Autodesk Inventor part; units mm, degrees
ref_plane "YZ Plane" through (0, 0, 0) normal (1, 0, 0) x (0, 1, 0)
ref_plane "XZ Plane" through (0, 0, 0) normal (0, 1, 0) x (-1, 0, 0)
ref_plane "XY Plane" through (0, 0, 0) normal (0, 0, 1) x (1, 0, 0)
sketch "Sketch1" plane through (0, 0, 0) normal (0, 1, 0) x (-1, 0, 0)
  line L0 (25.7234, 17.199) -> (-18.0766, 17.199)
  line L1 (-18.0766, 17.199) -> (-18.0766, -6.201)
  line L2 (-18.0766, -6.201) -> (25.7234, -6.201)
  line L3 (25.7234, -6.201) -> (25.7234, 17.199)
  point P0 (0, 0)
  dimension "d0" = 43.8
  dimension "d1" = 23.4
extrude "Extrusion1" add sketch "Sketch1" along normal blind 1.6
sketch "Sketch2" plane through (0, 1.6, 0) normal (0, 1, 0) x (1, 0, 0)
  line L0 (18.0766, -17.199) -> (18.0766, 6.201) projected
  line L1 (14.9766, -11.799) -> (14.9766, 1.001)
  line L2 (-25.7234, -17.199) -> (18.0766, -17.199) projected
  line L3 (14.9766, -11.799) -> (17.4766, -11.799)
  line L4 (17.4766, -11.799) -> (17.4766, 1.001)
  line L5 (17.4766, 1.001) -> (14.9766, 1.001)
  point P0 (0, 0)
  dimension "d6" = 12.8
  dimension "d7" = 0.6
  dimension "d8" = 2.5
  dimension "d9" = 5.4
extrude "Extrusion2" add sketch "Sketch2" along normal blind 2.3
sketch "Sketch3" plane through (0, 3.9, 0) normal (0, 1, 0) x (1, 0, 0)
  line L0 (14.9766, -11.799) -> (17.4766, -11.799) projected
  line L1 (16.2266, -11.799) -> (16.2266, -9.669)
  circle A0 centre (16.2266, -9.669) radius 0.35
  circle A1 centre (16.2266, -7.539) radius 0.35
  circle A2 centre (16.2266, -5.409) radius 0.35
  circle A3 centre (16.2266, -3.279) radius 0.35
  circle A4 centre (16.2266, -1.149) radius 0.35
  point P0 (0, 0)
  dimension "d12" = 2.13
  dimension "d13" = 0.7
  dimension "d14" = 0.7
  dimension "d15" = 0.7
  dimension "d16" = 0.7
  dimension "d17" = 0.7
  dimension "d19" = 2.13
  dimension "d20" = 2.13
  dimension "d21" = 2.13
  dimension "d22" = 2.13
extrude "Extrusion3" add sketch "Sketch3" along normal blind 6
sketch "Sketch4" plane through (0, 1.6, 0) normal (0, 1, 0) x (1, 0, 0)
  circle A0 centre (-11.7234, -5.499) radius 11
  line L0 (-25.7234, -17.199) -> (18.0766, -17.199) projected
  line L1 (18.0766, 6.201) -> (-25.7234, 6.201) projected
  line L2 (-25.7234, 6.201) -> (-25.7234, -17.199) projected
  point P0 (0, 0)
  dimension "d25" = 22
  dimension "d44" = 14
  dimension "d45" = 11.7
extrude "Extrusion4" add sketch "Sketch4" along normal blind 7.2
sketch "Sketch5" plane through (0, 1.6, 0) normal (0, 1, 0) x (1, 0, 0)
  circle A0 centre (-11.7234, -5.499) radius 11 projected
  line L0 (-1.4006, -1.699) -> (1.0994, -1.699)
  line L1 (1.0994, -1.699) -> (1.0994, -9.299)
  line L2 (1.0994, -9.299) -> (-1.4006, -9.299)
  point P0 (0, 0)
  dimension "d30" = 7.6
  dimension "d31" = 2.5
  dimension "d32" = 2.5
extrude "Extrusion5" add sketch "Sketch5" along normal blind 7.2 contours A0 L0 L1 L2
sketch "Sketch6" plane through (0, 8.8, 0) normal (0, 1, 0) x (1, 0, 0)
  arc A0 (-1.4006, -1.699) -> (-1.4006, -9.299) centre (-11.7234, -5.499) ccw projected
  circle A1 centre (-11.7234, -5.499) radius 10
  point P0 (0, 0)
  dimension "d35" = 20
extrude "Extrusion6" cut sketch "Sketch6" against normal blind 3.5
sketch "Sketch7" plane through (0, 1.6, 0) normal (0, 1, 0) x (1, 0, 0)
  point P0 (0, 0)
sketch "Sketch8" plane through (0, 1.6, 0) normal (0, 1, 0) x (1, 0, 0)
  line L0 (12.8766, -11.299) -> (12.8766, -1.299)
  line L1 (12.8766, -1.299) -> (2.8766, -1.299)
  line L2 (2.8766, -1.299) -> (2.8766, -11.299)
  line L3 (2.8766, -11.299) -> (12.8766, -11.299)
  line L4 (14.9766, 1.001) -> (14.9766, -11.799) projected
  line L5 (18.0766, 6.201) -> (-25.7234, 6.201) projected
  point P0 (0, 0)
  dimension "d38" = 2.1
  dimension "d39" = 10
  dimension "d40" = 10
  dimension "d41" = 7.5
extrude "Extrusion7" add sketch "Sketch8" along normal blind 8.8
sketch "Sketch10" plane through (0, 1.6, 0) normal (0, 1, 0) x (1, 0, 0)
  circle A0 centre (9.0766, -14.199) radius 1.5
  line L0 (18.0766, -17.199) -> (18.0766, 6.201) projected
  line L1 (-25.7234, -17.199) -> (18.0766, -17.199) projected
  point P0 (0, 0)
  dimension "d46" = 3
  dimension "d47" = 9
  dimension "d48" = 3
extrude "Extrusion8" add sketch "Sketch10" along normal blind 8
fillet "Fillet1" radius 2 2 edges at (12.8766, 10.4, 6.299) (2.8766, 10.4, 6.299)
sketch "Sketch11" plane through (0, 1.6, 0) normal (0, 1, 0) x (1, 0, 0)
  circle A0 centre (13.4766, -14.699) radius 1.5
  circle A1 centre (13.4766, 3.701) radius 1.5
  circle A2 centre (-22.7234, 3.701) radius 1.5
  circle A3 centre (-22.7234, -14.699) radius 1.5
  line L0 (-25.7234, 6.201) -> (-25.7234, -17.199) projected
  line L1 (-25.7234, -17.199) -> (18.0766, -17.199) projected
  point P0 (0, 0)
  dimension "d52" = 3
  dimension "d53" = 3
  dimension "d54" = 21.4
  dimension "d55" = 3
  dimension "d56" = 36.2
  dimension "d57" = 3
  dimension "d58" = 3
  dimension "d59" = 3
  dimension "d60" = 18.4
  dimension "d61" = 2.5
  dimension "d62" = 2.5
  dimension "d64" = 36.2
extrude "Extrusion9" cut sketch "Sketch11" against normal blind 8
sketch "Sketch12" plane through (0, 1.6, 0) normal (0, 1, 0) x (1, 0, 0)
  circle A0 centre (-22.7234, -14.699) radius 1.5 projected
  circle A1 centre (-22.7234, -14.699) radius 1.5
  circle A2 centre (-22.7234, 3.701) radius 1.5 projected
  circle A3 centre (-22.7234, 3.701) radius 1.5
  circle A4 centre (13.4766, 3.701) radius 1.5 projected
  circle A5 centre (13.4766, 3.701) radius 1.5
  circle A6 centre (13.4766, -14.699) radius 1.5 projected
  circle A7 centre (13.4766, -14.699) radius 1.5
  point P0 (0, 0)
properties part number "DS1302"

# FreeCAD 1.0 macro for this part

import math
import FreeCAD as App
import Part
import Sketcher


def edges_at(feature, points):
    """Names of the edges that pass closest to the given points."""
    edges = feature.Shape.Edges
    near = lambda p: min(range(len(edges)), key=lambda i: edges[i].distToShape(Part.Vertex(*p))[0])
    return sorted({f"Edge{near(p) + 1}" for p in points})

doc = App.newDocument("Part")
body = doc.addObject("PartDesign::Body", "Body")

# Sketch on XZ plane
sketch1 = doc.addObject("Sketcher::SketchObject", "Sketch")
body.addObject(sketch1)
sketch1.AttachmentSupport = (doc.XZ_Plane, [""])
sketch1.MapMode = "FlatFace"
sketch1.addGeometry([
    Part.LineSegment(App.Vector(-26, -6, 0), App.Vector(-26, 17, 0)),
    Part.LineSegment(App.Vector(-26, 17, 0), App.Vector(18, 17, 0)),
    Part.LineSegment(App.Vector(18, 17, 0), App.Vector(18, -6, 0)),
    Part.LineSegment(App.Vector(18, -6, 0), App.Vector(-26, -6, 0)),
], False)
sketch1.addConstraint([
    Sketcher.Constraint("Coincident", 0, 2, 1, 1),
    Sketcher.Constraint("Coincident", 1, 2, 2, 1),
    Sketcher.Constraint("Coincident", 2, 2, 3, 1),
    Sketcher.Constraint("Coincident", 3, 2, 0, 1),
    Sketcher.Constraint("Vertical", 0),
    Sketcher.Constraint("Horizontal", 1),
    Sketcher.Constraint("Vertical", 2),
    Sketcher.Constraint("Horizontal", 3),
    Sketcher.Constraint("DistanceX", 1, 1, 1, 2, 43.8),
    Sketcher.Constraint("DistanceY", 0, 1, 0, 2, 23.4),
    Sketcher.Constraint("DistanceY", -1, 1, 0, 2, 17.199),
    Sketcher.Constraint("DistanceX", 0, 2, -1, 1, 25.7234),
])
pad1 = doc.addObject("PartDesign::Pad", "Pad")
body.addObject(pad1)
pad1.Profile = sketch1
pad1.Length = 1.6
pad1.Reversed = True

# Sketch on XZ plane
sketch2 = doc.addObject("Sketcher::SketchObject", "Sketch001")
body.addObject(sketch2)
sketch2.AttachmentSupport = (doc.XZ_Plane, [""])
sketch2.MapMode = "FlatFace"
sketch2.AttachmentOffset = App.Placement(App.Vector(0, 0, -1.6), App.Rotation())
sketch2.addGeometry([
    Part.LineSegment(App.Vector(15, -1, 0), App.Vector(15, 11.8, 0)),
    Part.LineSegment(App.Vector(15, 11.8, 0), App.Vector(17.5, 11.8, 0)),
    Part.LineSegment(App.Vector(17.5, 11.8, 0), App.Vector(17.5, -1, 0)),
    Part.LineSegment(App.Vector(17.5, -1, 0), App.Vector(15, -1, 0)),
], False)
sketch2.addConstraint([
    Sketcher.Constraint("Coincident", 0, 2, 1, 1),
    Sketcher.Constraint("Coincident", 1, 2, 2, 1),
    Sketcher.Constraint("Coincident", 2, 2, 3, 1),
    Sketcher.Constraint("Coincident", 3, 2, 0, 1),
    Sketcher.Constraint("Vertical", 0),
    Sketcher.Constraint("Horizontal", 1),
    Sketcher.Constraint("Vertical", 2),
    Sketcher.Constraint("Horizontal", 3),
    Sketcher.Constraint("DistanceX", 1, 1, 1, 2, 2.5),
    Sketcher.Constraint("DistanceY", 0, 1, 0, 2, 12.8),
    Sketcher.Constraint("DistanceY", -1, 1, 0, 2, 11.799),
    Sketcher.Constraint("DistanceX", -1, 1, 0, 2, 14.9766),
])
pad2 = doc.addObject("PartDesign::Pad", "Pad001")
body.addObject(pad2)
pad2.Profile = sketch2
pad2.Length = 2.3
pad2.Reversed = True

# Sketch on XZ plane
sketch3 = doc.addObject("Sketcher::SketchObject", "Sketch002")
body.addObject(sketch3)
sketch3.AttachmentSupport = (doc.XZ_Plane, [""])
sketch3.MapMode = "FlatFace"
sketch3.AttachmentOffset = App.Placement(App.Vector(0, 0, -3.9), App.Rotation())
sketch3.addGeometry([
    Part.Circle(App.Vector(16.23, 9.67, 0), App.Vector(0, 0, 1), 0.35),  # 0
    Part.Circle(App.Vector(16.23, 7.54, 0), App.Vector(0, 0, 1), 0.35),  # 1
    Part.Circle(App.Vector(16.23, 5.41, 0), App.Vector(0, 0, 1), 0.35),  # 2
    Part.Circle(App.Vector(16.23, 3.28, 0), App.Vector(0, 0, 1), 0.35),  # 3
    Part.Circle(App.Vector(16.23, 1.15, 0), App.Vector(0, 0, 1), 0.35),  # 4
], False)
sketch3.addConstraint([
    Sketcher.Constraint("Equal", 0, 1),
    Sketcher.Constraint("Equal", 1, 2),
    Sketcher.Constraint("Equal", 2, 3),
    Sketcher.Constraint("Equal", 3, 4),
    Sketcher.Constraint("Vertical", 0, 3, 1, 3),
    Sketcher.Constraint("Vertical", 1, 3, 2, 3),
    Sketcher.Constraint("Vertical", 2, 3, 3, 3),
    Sketcher.Constraint("Vertical", 3, 3, 4, 3),
    Sketcher.Constraint("Diameter", 0, 0.7),
    Sketcher.Constraint("DistanceY", 1, 3, 0, 3, 2.13),
    Sketcher.Constraint("DistanceY", 2, 3, 1, 3, 2.13),
    Sketcher.Constraint("DistanceY", 3, 3, 2, 3, 2.13),
    Sketcher.Constraint("DistanceY", 4, 3, 3, 3, 2.13),
    Sketcher.Constraint("DistanceY", -1, 1, 0, 3, 9.669),
    Sketcher.Constraint("DistanceX", -1, 1, 0, 3, 16.2266),
])
pad3 = doc.addObject("PartDesign::Pad", "Pad002")
body.addObject(pad3)
pad3.Profile = sketch3
pad3.Length = 6
pad3.Reversed = True

# Sketch on XZ plane
sketch4 = doc.addObject("Sketcher::SketchObject", "Sketch003")
body.addObject(sketch4)
sketch4.AttachmentSupport = (doc.XZ_Plane, [""])
sketch4.MapMode = "FlatFace"
sketch4.AttachmentOffset = App.Placement(App.Vector(0, 0, -1.6), App.Rotation())
sketch4.addGeometry(Part.Circle(App.Vector(-12, 5, 0), App.Vector(0, 0, 1), 11), False)
sketch4.addConstraint([
    Sketcher.Constraint("Diameter", 0, 22.0),
    Sketcher.Constraint("DistanceY", -1, 1, 0, 3, 5.499),
    Sketcher.Constraint("DistanceX", 0, 3, -1, 1, 11.7234),
])
pad4 = doc.addObject("PartDesign::Pad", "Pad003")
body.addObject(pad4)
pad4.Profile = sketch4
pad4.Length = 7.2
pad4.Reversed = True

# Sketch on XZ plane
sketch5 = doc.addObject("Sketcher::SketchObject", "Sketch004")
body.addObject(sketch5)
sketch5.AttachmentSupport = (doc.XZ_Plane, [""])
sketch5.MapMode = "FlatFace"
sketch5.AttachmentOffset = App.Placement(App.Vector(0, 0, -1.6), App.Rotation())
sketch5.addGeometry([
    Part.ArcOfCircle(Part.Circle(App.Vector(-11.7, 5.5, 0), App.Vector(0, 0, 1), 11), math.radians(-20), math.radians(20)),
    Part.LineSegment(App.Vector(-1.4, 9.3, 0), App.Vector(1.1, 9.3, 0)),
    Part.LineSegment(App.Vector(1.1, 9.3, 0), App.Vector(1.1, 1.7, 0)),
    Part.LineSegment(App.Vector(1.1, 1.7, 0), App.Vector(-1.4, 1.7, 0)),
], False)
sketch5.addConstraint([
    Sketcher.Constraint("Coincident", 0, 2, 1, 1),
    Sketcher.Constraint("Coincident", 1, 2, 2, 1),
    Sketcher.Constraint("Coincident", 2, 2, 3, 1),
    Sketcher.Constraint("Coincident", 3, 2, 0, 1),
    Sketcher.Constraint("Horizontal", 1),
    Sketcher.Constraint("Vertical", 2),
    Sketcher.Constraint("Horizontal", 3),
    Sketcher.Constraint("Vertical", 0, 2, 3, 2),
    Sketcher.Constraint("DistanceX", 1, 1, 1, 2, 2.5),
    Sketcher.Constraint("DistanceY", 2, 2, 2, 1, 7.6),
    Sketcher.Constraint("Radius", 0, 11.0),
    Sketcher.Constraint("DistanceY", -1, 1, 0, 3, 5.499),
    Sketcher.Constraint("DistanceX", 0, 3, -1, 1, 11.7234),
])
pad5 = doc.addObject("PartDesign::Pad", "Pad004")
body.addObject(pad5)
pad5.Profile = sketch5
pad5.Length = 7.2
pad5.Reversed = True

# Sketch on XZ plane
sketch6 = doc.addObject("Sketcher::SketchObject", "Sketch005")
body.addObject(sketch6)
sketch6.AttachmentSupport = (doc.XZ_Plane, [""])
sketch6.MapMode = "FlatFace"
sketch6.AttachmentOffset = App.Placement(App.Vector(0, 0, -8.8), App.Rotation())
sketch6.addGeometry(Part.Circle(App.Vector(-12, 5, 0), App.Vector(0, 0, 1), 10), False)
sketch6.addConstraint([
    Sketcher.Constraint("Diameter", 0, 20.0),
    Sketcher.Constraint("DistanceY", -1, 1, 0, 3, 5.499),
    Sketcher.Constraint("DistanceX", 0, 3, -1, 1, 11.7234),
])
pocket1 = doc.addObject("PartDesign::Pocket", "Pocket")
body.addObject(pocket1)
pocket1.Profile = sketch6
pocket1.Length = 3.5
pocket1.Reversed = True

# Sketch on XZ plane
sketch7 = doc.addObject("Sketcher::SketchObject", "Sketch006")
body.addObject(sketch7)
sketch7.AttachmentSupport = (doc.XZ_Plane, [""])
sketch7.MapMode = "FlatFace"
sketch7.AttachmentOffset = App.Placement(App.Vector(0, 0, -1.6), App.Rotation())
sketch7.addGeometry([
    Part.LineSegment(App.Vector(3, 11, 0), App.Vector(13, 11, 0)),
    Part.LineSegment(App.Vector(13, 11, 0), App.Vector(13, 1, 0)),
    Part.LineSegment(App.Vector(13, 1, 0), App.Vector(3, 1, 0)),
    Part.LineSegment(App.Vector(3, 1, 0), App.Vector(3, 11, 0)),
], False)
sketch7.addConstraint([
    Sketcher.Constraint("Coincident", 0, 2, 1, 1),
    Sketcher.Constraint("Coincident", 1, 2, 2, 1),
    Sketcher.Constraint("Coincident", 2, 2, 3, 1),
    Sketcher.Constraint("Coincident", 3, 2, 0, 1),
    Sketcher.Constraint("Horizontal", 0),
    Sketcher.Constraint("Vertical", 1),
    Sketcher.Constraint("Horizontal", 2),
    Sketcher.Constraint("Vertical", 3),
    Sketcher.Constraint("Equal", 2, 1),
    Sketcher.Constraint("DistanceX", 0, 1, 0, 2, 10.0),
    Sketcher.Constraint("DistanceY", -1, 1, 0, 2, 11.299),
    Sketcher.Constraint("DistanceX", -1, 1, 0, 2, 12.8766),
])
pad6 = doc.addObject("PartDesign::Pad", "Pad005")
body.addObject(pad6)
pad6.Profile = sketch7
pad6.Length = 8.8
pad6.Reversed = True

# Sketch on XZ plane
sketch8 = doc.addObject("Sketcher::SketchObject", "Sketch007")
body.addObject(sketch8)
sketch8.AttachmentSupport = (doc.XZ_Plane, [""])
sketch8.MapMode = "FlatFace"
sketch8.AttachmentOffset = App.Placement(App.Vector(0, 0, -1.6), App.Rotation())
sketch8.addGeometry(Part.Circle(App.Vector(9.1, 14.2, 0), App.Vector(0, 0, 1), 1.5), False)
sketch8.addConstraint([
    Sketcher.Constraint("Diameter", 0, 3.0),
    Sketcher.Constraint("DistanceY", -1, 1, 0, 3, 14.199),
    Sketcher.Constraint("DistanceX", -1, 1, 0, 3, 9.0766),
])
pad7 = doc.addObject("PartDesign::Pad", "Pad006")
body.addObject(pad7)
pad7.Profile = sketch8
pad7.Length = 8
pad7.Reversed = True
doc.recompute()

fillet = doc.addObject("PartDesign::Fillet", "Fillet")
body.addObject(fillet)
fillet.Base = (pad7, edges_at(pad7, [(12.877, 10.4, 6.299), (2.877, 10.4, 6.299)]))
fillet.Radius = 2

# Sketch on XZ plane
sketch9 = doc.addObject("Sketcher::SketchObject", "Sketch008")
body.addObject(sketch9)
sketch9.AttachmentSupport = (doc.XZ_Plane, [""])
sketch9.MapMode = "FlatFace"
sketch9.AttachmentOffset = App.Placement(App.Vector(0, 0, -1.6), App.Rotation())
sketch9.addGeometry([
    Part.Circle(App.Vector(13.5, 14.7, 0), App.Vector(0, 0, 1), 1.5),
    Part.Circle(App.Vector(13.5, -3.7, 0), App.Vector(0, 0, 1), 1.5),
    Part.Circle(App.Vector(-22.7, -3.7, 0), App.Vector(0, 0, 1), 1.5),
    Part.Circle(App.Vector(-22.7, 14.7, 0), App.Vector(0, 0, 1), 1.5),
], False)
sketch9.addConstraint([
    Sketcher.Constraint("Equal", 0, 1),
    Sketcher.Constraint("Equal", 1, 2),
    Sketcher.Constraint("Equal", 2, 3),
    Sketcher.Constraint("Horizontal", 1, 3, 2, 3),
    Sketcher.Constraint("Horizontal", 0, 3, 3, 3),
    Sketcher.Constraint("Vertical", 0, 3, 1, 3),
    Sketcher.Constraint("Vertical", 2, 3, 3, 3),
    Sketcher.Constraint("Diameter", 0, 3.0),
    Sketcher.Constraint("DistanceY", 1, 3, 0, 3, 18.4),
    Sketcher.Constraint("DistanceX", 2, 3, 1, 3, 36.2),
    Sketcher.Constraint("DistanceY", -1, 1, 0, 3, 14.699),
    Sketcher.Constraint("DistanceX", -1, 1, 0, 3, 13.4766),
])
pocket2 = doc.addObject("PartDesign::Pocket", "Pocket001")
body.addObject(pocket2)
pocket2.Profile = sketch9
pocket2.Length = 8
pocket2.Reversed = True

doc.recompute()
